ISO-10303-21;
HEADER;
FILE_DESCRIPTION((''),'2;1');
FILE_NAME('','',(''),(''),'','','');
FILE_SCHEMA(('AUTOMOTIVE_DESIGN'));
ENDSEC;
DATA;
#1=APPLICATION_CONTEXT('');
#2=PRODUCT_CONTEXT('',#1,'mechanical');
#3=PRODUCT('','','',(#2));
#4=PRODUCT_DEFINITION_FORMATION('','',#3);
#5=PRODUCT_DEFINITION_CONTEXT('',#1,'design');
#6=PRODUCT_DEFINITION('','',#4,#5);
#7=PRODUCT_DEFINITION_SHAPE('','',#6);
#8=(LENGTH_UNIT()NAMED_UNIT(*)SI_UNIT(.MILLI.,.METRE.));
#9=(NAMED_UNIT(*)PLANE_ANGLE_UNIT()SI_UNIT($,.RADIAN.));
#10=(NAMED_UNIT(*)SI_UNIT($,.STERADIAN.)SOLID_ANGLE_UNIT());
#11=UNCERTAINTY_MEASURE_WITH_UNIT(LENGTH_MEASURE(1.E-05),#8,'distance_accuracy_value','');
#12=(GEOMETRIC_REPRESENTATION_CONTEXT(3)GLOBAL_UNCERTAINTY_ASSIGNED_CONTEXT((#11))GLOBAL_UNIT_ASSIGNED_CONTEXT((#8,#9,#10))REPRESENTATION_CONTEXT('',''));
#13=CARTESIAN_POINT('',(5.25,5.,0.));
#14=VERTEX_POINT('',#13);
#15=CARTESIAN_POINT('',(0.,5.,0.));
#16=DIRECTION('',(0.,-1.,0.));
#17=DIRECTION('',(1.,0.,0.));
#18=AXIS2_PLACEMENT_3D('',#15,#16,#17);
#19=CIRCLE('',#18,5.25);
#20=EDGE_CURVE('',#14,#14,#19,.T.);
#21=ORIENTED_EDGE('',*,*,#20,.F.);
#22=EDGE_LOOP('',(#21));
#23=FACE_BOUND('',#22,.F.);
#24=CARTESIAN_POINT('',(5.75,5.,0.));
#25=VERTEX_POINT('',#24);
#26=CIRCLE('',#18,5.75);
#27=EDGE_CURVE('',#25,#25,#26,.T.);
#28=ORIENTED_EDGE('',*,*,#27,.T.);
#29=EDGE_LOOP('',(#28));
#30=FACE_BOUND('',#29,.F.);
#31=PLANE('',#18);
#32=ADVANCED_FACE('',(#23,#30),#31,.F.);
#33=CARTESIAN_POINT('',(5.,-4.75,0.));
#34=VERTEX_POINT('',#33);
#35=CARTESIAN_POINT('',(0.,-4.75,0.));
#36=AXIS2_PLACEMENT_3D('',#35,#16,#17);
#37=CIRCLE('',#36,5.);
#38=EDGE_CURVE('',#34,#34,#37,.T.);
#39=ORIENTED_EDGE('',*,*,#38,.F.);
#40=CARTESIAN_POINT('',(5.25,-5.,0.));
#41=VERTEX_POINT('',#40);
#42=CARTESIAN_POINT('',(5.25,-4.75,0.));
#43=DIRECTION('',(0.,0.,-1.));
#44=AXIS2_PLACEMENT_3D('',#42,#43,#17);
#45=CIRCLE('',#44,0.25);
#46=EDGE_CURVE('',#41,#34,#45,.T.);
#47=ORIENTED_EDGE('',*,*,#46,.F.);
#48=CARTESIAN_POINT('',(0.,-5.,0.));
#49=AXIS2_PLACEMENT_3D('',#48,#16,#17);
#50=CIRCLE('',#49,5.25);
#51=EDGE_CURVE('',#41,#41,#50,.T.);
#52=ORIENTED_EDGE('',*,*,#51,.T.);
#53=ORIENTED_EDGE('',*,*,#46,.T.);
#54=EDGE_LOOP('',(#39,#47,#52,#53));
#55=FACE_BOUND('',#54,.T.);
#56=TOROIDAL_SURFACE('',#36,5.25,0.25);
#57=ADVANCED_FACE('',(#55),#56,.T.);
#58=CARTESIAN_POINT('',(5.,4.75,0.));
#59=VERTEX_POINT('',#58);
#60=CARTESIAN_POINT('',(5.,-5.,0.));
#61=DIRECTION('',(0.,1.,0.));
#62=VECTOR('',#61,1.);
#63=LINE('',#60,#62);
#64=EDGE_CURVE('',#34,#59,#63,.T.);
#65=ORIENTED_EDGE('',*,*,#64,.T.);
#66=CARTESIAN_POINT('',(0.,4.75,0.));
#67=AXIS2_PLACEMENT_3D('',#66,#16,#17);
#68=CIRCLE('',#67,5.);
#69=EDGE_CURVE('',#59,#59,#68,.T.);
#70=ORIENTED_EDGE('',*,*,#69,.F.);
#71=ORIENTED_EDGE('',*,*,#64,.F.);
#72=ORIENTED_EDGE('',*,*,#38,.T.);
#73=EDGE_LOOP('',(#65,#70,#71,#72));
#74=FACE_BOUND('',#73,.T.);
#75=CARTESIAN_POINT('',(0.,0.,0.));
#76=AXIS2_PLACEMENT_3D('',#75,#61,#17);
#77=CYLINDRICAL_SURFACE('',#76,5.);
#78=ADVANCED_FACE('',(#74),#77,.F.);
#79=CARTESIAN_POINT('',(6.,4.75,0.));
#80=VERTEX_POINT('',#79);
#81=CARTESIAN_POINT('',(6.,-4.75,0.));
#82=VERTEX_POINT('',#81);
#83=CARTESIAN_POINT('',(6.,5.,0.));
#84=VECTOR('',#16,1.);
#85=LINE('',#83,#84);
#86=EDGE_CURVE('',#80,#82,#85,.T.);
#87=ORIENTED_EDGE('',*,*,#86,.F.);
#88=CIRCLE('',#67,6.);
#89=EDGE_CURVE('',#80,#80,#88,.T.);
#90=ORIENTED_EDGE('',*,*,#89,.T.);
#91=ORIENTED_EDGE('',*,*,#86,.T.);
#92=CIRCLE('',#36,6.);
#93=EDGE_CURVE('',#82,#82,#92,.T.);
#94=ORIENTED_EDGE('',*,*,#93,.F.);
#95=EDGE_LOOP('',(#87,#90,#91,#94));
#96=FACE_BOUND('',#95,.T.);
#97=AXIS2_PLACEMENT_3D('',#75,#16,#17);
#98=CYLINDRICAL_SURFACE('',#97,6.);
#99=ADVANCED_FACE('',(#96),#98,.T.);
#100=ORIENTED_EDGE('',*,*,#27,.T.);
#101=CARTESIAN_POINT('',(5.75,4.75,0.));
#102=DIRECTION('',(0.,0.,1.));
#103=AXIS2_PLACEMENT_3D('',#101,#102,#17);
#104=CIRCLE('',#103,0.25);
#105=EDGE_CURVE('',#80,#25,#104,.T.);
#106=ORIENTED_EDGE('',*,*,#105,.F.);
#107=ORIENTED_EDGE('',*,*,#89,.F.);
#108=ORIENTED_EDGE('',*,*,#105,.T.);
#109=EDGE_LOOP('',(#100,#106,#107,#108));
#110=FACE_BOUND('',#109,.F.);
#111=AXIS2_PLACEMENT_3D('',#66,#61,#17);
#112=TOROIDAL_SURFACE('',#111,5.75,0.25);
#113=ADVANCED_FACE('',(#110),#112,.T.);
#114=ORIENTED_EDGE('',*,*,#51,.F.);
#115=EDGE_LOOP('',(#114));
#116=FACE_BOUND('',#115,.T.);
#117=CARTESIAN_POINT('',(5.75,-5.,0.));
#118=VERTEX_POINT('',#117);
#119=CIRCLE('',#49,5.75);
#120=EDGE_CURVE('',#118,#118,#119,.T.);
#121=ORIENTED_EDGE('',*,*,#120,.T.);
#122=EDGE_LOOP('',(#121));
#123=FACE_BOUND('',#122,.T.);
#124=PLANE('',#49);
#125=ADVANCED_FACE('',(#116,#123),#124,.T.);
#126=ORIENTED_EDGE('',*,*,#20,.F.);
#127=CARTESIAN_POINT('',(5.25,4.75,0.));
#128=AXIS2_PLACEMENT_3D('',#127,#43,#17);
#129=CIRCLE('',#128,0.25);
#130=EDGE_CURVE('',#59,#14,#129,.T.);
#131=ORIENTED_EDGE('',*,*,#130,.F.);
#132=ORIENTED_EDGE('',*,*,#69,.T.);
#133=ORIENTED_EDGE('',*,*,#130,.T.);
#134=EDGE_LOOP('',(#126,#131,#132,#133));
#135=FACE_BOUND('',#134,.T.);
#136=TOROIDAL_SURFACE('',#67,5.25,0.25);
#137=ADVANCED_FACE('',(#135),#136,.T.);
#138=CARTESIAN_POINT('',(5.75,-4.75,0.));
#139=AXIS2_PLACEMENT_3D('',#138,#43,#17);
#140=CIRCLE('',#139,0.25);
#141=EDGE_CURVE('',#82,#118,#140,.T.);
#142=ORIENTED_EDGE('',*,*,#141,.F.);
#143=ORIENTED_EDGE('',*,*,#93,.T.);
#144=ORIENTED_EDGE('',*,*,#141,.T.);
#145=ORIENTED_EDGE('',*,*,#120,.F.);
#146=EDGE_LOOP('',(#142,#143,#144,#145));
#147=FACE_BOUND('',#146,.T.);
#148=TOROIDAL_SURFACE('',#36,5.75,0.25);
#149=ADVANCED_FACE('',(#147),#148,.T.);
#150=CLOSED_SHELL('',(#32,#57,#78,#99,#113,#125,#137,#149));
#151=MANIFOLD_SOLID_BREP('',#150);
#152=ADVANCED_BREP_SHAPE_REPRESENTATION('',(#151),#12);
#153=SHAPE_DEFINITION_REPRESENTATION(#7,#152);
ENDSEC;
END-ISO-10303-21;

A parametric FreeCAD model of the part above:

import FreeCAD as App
import Part
import Sketcher
Q = App.Units.Quantity


def edges_at(feature, points):
    """Names of the edges that pass closest to the given points."""
    edges = feature.Shape.Edges
    near = lambda p: min(range(len(edges)), key=lambda i: edges[i].distToShape(Part.Vertex(*p))[0])
    return sorted({f"Edge{near(p) + 1}" for p in points})

doc = App.newDocument("Part")
body = doc.addObject("PartDesign::Body", "Body")

# Sketch on XZ plane
sketch1 = body.newObject("Sketcher::SketchObject", "Sketch")
sketch1.AttachmentSupport = (doc.getObject("XZ_Plane"), [""])
sketch1.MapMode = "FlatFace"
sketch1.addGeometry(Part.Circle(App.Vector(0, 0, 0), App.Vector(0, 0, 1), 6), False)
sketch1.addGeometry(Part.Circle(App.Vector(0, 0, 0), App.Vector(0, 0, 1), 5), False)
sketch1.addConstraint(Sketcher.Constraint("Coincident", 0, 3, -1, 1))
sketch1.addConstraint(Sketcher.Constraint("Coincident", 1, 3, -1, 1))
sketch1.addConstraint(Sketcher.Constraint("Diameter", 0, Q("12 mm")))
sketch1.addConstraint(Sketcher.Constraint("Diameter", 1, Q("10 mm")))
pad1 = body.newObject("PartDesign::Pad", "Pad")
pad1.Profile = sketch1
pad1.Length = 10
pad1.Midplane = True
doc.recompute()

fillet = body.newObject("PartDesign::Fillet", "Fillet")
fillet.Base = (pad1, edges_at(pad1, [
    (-6, -5, 0),
    (-5, -5, 0),
    (-6, 5, 0),
    (-5, 5, 0),
]))
fillet.Radius = 0.25

doc.recompute()
